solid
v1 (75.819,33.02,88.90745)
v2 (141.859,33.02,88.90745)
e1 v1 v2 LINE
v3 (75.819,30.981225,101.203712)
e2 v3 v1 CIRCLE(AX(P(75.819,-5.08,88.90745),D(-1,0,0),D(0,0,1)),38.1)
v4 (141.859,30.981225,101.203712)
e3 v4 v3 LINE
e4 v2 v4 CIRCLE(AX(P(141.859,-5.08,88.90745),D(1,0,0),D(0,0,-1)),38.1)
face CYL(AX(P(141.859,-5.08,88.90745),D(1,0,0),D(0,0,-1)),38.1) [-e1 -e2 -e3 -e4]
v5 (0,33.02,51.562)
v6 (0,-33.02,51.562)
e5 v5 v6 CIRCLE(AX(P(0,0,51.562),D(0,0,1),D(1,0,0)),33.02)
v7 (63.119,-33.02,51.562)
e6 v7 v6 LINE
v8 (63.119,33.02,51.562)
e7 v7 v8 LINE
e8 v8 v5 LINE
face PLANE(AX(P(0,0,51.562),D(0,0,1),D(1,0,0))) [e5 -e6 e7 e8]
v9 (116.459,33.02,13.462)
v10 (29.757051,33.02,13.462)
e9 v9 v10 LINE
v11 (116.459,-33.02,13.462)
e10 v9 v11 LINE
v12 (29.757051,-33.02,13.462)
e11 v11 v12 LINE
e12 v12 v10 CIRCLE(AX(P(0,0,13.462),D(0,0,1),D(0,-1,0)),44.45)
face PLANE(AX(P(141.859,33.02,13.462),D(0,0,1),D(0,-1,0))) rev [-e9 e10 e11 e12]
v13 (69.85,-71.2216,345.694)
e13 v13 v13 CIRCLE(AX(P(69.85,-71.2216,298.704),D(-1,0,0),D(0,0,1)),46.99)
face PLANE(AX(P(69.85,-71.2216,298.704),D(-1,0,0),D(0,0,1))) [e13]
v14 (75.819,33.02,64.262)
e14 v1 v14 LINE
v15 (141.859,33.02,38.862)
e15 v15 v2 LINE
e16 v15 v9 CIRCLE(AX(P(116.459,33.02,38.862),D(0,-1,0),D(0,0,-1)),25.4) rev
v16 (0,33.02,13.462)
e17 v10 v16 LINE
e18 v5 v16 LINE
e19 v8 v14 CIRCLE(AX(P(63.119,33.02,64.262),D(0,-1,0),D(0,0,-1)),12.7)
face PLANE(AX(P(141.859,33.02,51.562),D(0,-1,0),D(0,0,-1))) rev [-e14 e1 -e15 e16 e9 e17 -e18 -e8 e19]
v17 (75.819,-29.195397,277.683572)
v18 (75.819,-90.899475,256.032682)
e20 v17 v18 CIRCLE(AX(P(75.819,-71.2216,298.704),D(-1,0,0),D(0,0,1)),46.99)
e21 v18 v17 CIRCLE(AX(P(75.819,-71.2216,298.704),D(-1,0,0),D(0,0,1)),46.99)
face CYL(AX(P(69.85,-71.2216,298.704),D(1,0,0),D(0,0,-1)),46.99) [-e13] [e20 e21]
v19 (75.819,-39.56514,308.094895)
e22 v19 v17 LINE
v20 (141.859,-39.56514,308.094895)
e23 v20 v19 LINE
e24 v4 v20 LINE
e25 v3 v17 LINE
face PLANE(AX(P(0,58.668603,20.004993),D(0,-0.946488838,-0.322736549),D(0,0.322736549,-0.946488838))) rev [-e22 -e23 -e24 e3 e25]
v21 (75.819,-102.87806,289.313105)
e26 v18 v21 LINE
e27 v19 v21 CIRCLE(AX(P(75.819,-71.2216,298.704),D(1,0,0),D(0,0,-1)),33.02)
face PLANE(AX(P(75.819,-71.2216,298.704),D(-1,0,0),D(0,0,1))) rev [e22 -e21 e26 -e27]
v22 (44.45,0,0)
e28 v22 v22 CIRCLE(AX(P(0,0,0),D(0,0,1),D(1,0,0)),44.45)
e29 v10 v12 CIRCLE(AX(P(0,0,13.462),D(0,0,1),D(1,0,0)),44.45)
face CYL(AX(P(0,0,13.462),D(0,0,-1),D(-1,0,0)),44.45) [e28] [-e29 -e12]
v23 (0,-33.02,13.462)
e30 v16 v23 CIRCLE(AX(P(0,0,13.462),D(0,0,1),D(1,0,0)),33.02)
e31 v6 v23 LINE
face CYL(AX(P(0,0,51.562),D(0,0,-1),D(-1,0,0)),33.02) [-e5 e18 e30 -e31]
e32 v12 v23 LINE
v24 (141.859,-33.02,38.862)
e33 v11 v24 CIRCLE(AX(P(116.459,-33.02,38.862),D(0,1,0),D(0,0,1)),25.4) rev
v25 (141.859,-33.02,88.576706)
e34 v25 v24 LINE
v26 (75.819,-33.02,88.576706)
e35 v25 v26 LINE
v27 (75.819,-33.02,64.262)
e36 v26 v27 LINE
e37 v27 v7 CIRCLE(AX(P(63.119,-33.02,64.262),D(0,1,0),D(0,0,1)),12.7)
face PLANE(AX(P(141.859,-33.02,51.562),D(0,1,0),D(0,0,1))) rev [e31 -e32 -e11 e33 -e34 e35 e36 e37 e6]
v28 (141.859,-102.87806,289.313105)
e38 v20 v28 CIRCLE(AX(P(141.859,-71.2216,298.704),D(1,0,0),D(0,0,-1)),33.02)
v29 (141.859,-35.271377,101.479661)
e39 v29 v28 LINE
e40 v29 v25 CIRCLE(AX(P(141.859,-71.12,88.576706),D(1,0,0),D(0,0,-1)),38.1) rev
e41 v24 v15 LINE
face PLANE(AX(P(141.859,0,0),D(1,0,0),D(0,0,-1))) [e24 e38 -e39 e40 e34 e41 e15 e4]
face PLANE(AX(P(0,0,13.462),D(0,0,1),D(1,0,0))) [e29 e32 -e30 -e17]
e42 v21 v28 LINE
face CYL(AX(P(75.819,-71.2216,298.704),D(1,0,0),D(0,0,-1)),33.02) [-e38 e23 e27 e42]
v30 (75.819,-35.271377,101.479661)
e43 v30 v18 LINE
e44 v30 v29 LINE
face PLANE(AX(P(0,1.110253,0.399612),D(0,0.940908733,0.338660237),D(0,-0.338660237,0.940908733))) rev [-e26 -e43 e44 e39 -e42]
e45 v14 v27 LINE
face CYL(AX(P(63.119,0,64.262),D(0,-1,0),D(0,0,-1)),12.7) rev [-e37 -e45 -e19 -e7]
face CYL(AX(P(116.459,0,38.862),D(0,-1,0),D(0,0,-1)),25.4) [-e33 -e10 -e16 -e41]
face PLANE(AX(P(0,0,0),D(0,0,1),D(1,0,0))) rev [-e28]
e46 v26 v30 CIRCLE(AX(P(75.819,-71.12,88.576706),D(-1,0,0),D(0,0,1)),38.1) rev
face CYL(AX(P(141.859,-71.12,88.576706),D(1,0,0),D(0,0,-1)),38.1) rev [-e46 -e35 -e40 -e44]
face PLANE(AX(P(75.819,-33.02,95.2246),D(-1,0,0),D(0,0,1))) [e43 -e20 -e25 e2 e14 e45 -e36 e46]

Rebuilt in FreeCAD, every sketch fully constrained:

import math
import FreeCAD as App
import Part
import Sketcher

V = App.Vector
Q = App.Units.Quantity


def edges_at(feature, points):
    """Names of the edges that pass closest to the given points."""
    edges = feature.Shape.Edges
    near = lambda p: min(range(len(edges)), key=lambda i: edges[i].distToShape(Part.Vertex(*p))[0])
    return sorted({f"Edge{near(p) + 1}" for p in points})

doc = App.newDocument("Part")
body = doc.addObject("PartDesign::Body", "Body")

# Sketch on XY plane
sketch1 = body.newObject("Sketcher::SketchObject", "Sketch")
sketch1.AttachmentSupport = (doc.getObject("XY_Plane"), [""])
sketch1.MapMode = "FlatFace"
sketch1.addGeometry(Part.Circle(V(0, 0, 0), V(0, 0, 1), 44), False)
sketch1.addConstraint([
    Sketcher.Constraint("Coincident", 0, 3, -1, 1),
    Sketcher.Constraint("Diameter", 0, Q("3.5 in")),
])
pad1 = body.newObject("PartDesign::Pad", "Pad")
pad1.Profile = sketch1
pad1.Length = Q("0.53 in")

# Sketch on XY plane
sketch2 = body.newObject("Sketcher::SketchObject", "Sketch001")
sketch2.AttachmentSupport = (doc.getObject("XY_Plane"), [""])
sketch2.MapMode = "FlatFace"
sketch2.AttachmentOffset = App.Placement(V(0, 0, 0.53 * 25.4), App.Rotation())
sketch2.addGeometry([
    Part.LineSegment(V(0, -33, 0), V(0, 33, 0)),
    Part.ArcOfCircle(Part.Circle(V(0, 0, 0), V(0, 0, 1), 33), math.radians(90), math.radians(270)),
], False)
sketch2.addConstraint([
    Sketcher.Constraint("Coincident", 0, 1, 1, 2),
    Sketcher.Constraint("Coincident", 1, 1, 0, 2),
    Sketcher.Constraint("Vertical", 0),
    Sketcher.Constraint("Coincident", 1, 3, -1, 1),
    Sketcher.Constraint("PointOnObject", 0, 1, -2),
    Sketcher.Constraint("Radius", 1, Q("1.3 in")),
])
pad2 = body.newObject("PartDesign::Pad", "Pad001")
pad2.Profile = sketch2
pad2.Length = Q("1.5 in")

# Sketch on YZ plane
sketch3 = body.newObject("Sketcher::SketchObject", "Sketch002")
sketch3.AttachmentSupport = (doc.getObject("YZ_Plane"), [""])
sketch3.MapMode = "FlatFace"
sketch3.addGeometry([
    Part.LineSegment(V(33, 52, 0), V(-33, 52, 0)),
    Part.LineSegment(V(-33, 52, 0), V(-33, 13, 0)),
    Part.LineSegment(V(-33, 13, 0), V(33, 13, 0)),
    Part.LineSegment(V(33, 13, 0), V(33, 52, 0)),
], False)
sketch3.addConstraint([
    Sketcher.Constraint("Coincident", 0, 2, 1, 1),
    Sketcher.Constraint("Coincident", 1, 2, 2, 1),
    Sketcher.Constraint("Coincident", 2, 2, 3, 1),
    Sketcher.Constraint("Coincident", 3, 2, 0, 1),
    Sketcher.Constraint("Horizontal", 0),
    Sketcher.Constraint("Vertical", 1),
    Sketcher.Constraint("Horizontal", 2),
    Sketcher.Constraint("Vertical", 3),
    Sketcher.Constraint("DistanceX", 0, 2, 0, 1, Q("2.6 in")),
    Sketcher.Constraint("DistanceY", 1, 2, 1, 1, Q("1.5 in")),
    Sketcher.Constraint("DistanceX", 0, 2, -1, 1, Q("1.3 in")),
    Sketcher.Constraint("DistanceY", -1, 1, 0, 2, Q("2.03 in")),
])
pad3 = body.newObject("PartDesign::Pad", "Pad002")
pad3.Profile = sketch3
pad3.Length = Q("5.585 in")

# Sketch on XY plane
sketch4 = body.newObject("Sketcher::SketchObject", "Sketch003")
sketch4.AttachmentSupport = (doc.getObject("XY_Plane"), [""])
sketch4.MapMode = "FlatFace"
sketch4.AttachmentOffset = App.Placement(V(0, 0, 2.03 * 25.4), App.Rotation())
sketch4.addGeometry([
    Part.LineSegment(V(76, -33, 0), V(76, 33, 0)),
    Part.LineSegment(V(76, 33, 0), V(142, 33, 0)),
    Part.LineSegment(V(142, 33, 0), V(142, -33, 0)),
    Part.LineSegment(V(142, -33, 0), V(76, -33, 0)),
], False)
sketch4.addConstraint([
    Sketcher.Constraint("Coincident", 0, 2, 1, 1),
    Sketcher.Constraint("Coincident", 1, 2, 2, 1),
    Sketcher.Constraint("Coincident", 2, 2, 3, 1),
    Sketcher.Constraint("Coincident", 3, 2, 0, 1),
    Sketcher.Constraint("Vertical", 0),
    Sketcher.Constraint("Horizontal", 1),
    Sketcher.Constraint("Vertical", 2),
    Sketcher.Constraint("Horizontal", 3),
    Sketcher.Constraint("Equal", 3, 0),
    Sketcher.Constraint("DistanceX", 1, 1, 1, 2, Q("2.6 in")),
    Sketcher.Constraint("DistanceY", -1, 1, 0, 2, Q("1.3 in")),
    Sketcher.Constraint("DistanceX", -1, 1, 0, 2, Q("2.985 in")),
])
pad4 = body.newObject("PartDesign::Pad", "Pad003")
pad4.Profile = sketch4
pad4.Length = Q("1.719 in")
doc.recompute()

fillet = body.newObject("PartDesign::Fillet", "Fillet")
fillet.Base = (pad4, edges_at(pad4, [(141.859, 0, 13.462)]))
fillet.Radius = Q("1 in")
doc.recompute()

fillet2 = body.newObject("PartDesign::Fillet", "Fillet001")
fillet2.Base = (fillet, edges_at(fillet, [(75.819, 0, 51.562)]))
fillet2.Radius = Q("0.5 in")

# Sketch on XY plane
sketch5 = body.newObject("Sketcher::SketchObject", "Sketch004")
sketch5.AttachmentSupport = (doc.getObject("XY_Plane"), [""])
sketch5.MapMode = "FlatFace"
sketch5.AttachmentOffset = App.Placement(V(0, 0, 3.749 * 25.4), App.Rotation())
sketch5.addGeometry([
    Part.LineSegment(V(76, 33, 0), V(76, -33, 0)),
    Part.LineSegment(V(76, -33, 0), V(142, -33, 0)),
    Part.LineSegment(V(142, -33, 0), V(142, 33, 0)),
    Part.LineSegment(V(142, 33, 0), V(76, 33, 0)),
], False)
sketch5.addConstraint([
    Sketcher.Constraint("Coincident", 0, 2, 1, 1),
    Sketcher.Constraint("Coincident", 1, 2, 2, 1),
    Sketcher.Constraint("Coincident", 2, 2, 3, 1),
    Sketcher.Constraint("Coincident", 3, 2, 0, 1),
    Sketcher.Constraint("Vertical", 0),
    Sketcher.Constraint("Horizontal", 1),
    Sketcher.Constraint("Vertical", 2),
    Sketcher.Constraint("Horizontal", 3),
    Sketcher.Constraint("Equal", 3, 0),
    Sketcher.Constraint("DistanceX", 1, 1, 1, 2, Q("2.6 in")),
    Sketcher.Constraint("DistanceY", 0, 2, -1, 1, Q("1.3 in")),
    Sketcher.Constraint("DistanceX", -1, 1, 0, 2, Q("2.985 in")),
])

# Sketch on an angled plane
sketch6 = body.newObject("Sketcher::SketchObject", "Sketch005")
sketch6.Placement = App.Placement(V(0, -87.204117, 293.962783), App.Rotation(V(-1, 0, 0), V(0, -0.958705647, -0.284400217), V(0, -0.284400217, 0.958705647), "ZXY"))
sketch6.addGeometry([
    Part.LineSegment(V(-76, 16, 0), V(-142, 16, 0)),
    Part.LineSegment(V(-142, 16, 0), V(-142, -50, 0)),
    Part.LineSegment(V(-142, -50, 0), V(-76, -50, 0)),
    Part.LineSegment(V(-76, -50, 0), V(-76, 16, 0)),
], False)
sketch6.addConstraint([
    Sketcher.Constraint("Coincident", 0, 2, 1, 1),
    Sketcher.Constraint("Coincident", 1, 2, 2, 1),
    Sketcher.Constraint("Coincident", 2, 2, 3, 1),
    Sketcher.Constraint("Coincident", 3, 2, 0, 1),
    Sketcher.Constraint("Horizontal", 0),
    Sketcher.Constraint("Vertical", 1),
    Sketcher.Constraint("Horizontal", 2),
    Sketcher.Constraint("Vertical", 3),
    Sketcher.Constraint("Equal", 2, 1),
    Sketcher.Constraint("DistanceX", 0, 2, 0, 1, Q("2.6 in")),
    Sketcher.Constraint("DistanceX", 0, 2, -1, 1, Q("5.585 in")),
    Sketcher.Constraint("DistanceY", -1, 1, 0, 2, 16.349068),
])

additiveloft = body.newObject("PartDesign::AdditiveLoft", "AdditiveLoft")
additiveloft.Profile = sketch5
additiveloft.Sections = [sketch6]
doc.recompute()

fillet3 = body.newObject("PartDesign::Fillet", "Fillet002")
fillet3.Base = (additiveloft, edges_at(additiveloft, [(108.839, 33.02, 95.225), (108.839, -33.02, 95.225)]))
fillet3.Radius = Q("1.5 in")

# Sketch on YZ plane
sketch7 = body.newObject("Sketcher::SketchObject", "Sketch006")
sketch7.AttachmentSupport = (doc.getObject("YZ_Plane"), [""])
sketch7.MapMode = "FlatFace"
sketch7.AttachmentOffset = App.Placement(V(0, 0, 5.585 * 25.4), App.Rotation())
sketch7.addGeometry([
    Part.LineSegment(V(-103, 289, 0), V(-40, 308, 0)),
    Part.ArcOfCircle(Part.Circle(V(-71, 299, 0), V(0, 0, 1), 33), math.radians(17), math.radians(197)),
], False)
sketch7.addConstraint([
    Sketcher.Constraint("Coincident", 0, 1, 1, 2),
    Sketcher.Constraint("Coincident", 1, 1, 0, 2),
    Sketcher.Constraint("Radius", 1, Q("1.3 in")),
    Sketcher.Constraint("DistanceY", -1, 1, 1, 3, Q("11.76 in")),
    Sketcher.Constraint("DistanceX", 1, 3, -1, 1, Q("2.804 in")),
    Sketcher.Constraint("DistanceX", 0, 1, -1, 1, 102.87806),
    Sketcher.Constraint("DistanceX", 1, 1, -1, 1, 39.56514),
])
pad5 = body.newObject("PartDesign::Pad", "Pad004")
pad5.Profile = sketch7
pad5.Length = Q("2.6 in")
pad5.Reversed = True

# Sketch on YZ plane
sketch8 = body.newObject("Sketcher::SketchObject", "Sketch007")
sketch8.AttachmentSupport = (doc.getObject("YZ_Plane"), [""])
sketch8.MapMode = "FlatFace"
sketch8.AttachmentOffset = App.Placement(V(0, 0, 2.985 * 25.4), App.Rotation())
sketch8.addGeometry(Part.Circle(V(-71, 299, 0), V(0, 0, 1), 47), False)
sketch8.addConstraint([
    Sketcher.Constraint("Diameter", 0, Q("3.7 in")),
    Sketcher.Constraint("DistanceY", -1, 1, 0, 3, Q("11.76 in")),
    Sketcher.Constraint("DistanceX", 0, 3, -1, 1, Q("2.804 in")),
])
pad6 = body.newObject("PartDesign::Pad", "Pad005")
pad6.Profile = sketch8
pad6.Length = Q("0.235 in")
pad6.Reversed = True

doc.recompute()
